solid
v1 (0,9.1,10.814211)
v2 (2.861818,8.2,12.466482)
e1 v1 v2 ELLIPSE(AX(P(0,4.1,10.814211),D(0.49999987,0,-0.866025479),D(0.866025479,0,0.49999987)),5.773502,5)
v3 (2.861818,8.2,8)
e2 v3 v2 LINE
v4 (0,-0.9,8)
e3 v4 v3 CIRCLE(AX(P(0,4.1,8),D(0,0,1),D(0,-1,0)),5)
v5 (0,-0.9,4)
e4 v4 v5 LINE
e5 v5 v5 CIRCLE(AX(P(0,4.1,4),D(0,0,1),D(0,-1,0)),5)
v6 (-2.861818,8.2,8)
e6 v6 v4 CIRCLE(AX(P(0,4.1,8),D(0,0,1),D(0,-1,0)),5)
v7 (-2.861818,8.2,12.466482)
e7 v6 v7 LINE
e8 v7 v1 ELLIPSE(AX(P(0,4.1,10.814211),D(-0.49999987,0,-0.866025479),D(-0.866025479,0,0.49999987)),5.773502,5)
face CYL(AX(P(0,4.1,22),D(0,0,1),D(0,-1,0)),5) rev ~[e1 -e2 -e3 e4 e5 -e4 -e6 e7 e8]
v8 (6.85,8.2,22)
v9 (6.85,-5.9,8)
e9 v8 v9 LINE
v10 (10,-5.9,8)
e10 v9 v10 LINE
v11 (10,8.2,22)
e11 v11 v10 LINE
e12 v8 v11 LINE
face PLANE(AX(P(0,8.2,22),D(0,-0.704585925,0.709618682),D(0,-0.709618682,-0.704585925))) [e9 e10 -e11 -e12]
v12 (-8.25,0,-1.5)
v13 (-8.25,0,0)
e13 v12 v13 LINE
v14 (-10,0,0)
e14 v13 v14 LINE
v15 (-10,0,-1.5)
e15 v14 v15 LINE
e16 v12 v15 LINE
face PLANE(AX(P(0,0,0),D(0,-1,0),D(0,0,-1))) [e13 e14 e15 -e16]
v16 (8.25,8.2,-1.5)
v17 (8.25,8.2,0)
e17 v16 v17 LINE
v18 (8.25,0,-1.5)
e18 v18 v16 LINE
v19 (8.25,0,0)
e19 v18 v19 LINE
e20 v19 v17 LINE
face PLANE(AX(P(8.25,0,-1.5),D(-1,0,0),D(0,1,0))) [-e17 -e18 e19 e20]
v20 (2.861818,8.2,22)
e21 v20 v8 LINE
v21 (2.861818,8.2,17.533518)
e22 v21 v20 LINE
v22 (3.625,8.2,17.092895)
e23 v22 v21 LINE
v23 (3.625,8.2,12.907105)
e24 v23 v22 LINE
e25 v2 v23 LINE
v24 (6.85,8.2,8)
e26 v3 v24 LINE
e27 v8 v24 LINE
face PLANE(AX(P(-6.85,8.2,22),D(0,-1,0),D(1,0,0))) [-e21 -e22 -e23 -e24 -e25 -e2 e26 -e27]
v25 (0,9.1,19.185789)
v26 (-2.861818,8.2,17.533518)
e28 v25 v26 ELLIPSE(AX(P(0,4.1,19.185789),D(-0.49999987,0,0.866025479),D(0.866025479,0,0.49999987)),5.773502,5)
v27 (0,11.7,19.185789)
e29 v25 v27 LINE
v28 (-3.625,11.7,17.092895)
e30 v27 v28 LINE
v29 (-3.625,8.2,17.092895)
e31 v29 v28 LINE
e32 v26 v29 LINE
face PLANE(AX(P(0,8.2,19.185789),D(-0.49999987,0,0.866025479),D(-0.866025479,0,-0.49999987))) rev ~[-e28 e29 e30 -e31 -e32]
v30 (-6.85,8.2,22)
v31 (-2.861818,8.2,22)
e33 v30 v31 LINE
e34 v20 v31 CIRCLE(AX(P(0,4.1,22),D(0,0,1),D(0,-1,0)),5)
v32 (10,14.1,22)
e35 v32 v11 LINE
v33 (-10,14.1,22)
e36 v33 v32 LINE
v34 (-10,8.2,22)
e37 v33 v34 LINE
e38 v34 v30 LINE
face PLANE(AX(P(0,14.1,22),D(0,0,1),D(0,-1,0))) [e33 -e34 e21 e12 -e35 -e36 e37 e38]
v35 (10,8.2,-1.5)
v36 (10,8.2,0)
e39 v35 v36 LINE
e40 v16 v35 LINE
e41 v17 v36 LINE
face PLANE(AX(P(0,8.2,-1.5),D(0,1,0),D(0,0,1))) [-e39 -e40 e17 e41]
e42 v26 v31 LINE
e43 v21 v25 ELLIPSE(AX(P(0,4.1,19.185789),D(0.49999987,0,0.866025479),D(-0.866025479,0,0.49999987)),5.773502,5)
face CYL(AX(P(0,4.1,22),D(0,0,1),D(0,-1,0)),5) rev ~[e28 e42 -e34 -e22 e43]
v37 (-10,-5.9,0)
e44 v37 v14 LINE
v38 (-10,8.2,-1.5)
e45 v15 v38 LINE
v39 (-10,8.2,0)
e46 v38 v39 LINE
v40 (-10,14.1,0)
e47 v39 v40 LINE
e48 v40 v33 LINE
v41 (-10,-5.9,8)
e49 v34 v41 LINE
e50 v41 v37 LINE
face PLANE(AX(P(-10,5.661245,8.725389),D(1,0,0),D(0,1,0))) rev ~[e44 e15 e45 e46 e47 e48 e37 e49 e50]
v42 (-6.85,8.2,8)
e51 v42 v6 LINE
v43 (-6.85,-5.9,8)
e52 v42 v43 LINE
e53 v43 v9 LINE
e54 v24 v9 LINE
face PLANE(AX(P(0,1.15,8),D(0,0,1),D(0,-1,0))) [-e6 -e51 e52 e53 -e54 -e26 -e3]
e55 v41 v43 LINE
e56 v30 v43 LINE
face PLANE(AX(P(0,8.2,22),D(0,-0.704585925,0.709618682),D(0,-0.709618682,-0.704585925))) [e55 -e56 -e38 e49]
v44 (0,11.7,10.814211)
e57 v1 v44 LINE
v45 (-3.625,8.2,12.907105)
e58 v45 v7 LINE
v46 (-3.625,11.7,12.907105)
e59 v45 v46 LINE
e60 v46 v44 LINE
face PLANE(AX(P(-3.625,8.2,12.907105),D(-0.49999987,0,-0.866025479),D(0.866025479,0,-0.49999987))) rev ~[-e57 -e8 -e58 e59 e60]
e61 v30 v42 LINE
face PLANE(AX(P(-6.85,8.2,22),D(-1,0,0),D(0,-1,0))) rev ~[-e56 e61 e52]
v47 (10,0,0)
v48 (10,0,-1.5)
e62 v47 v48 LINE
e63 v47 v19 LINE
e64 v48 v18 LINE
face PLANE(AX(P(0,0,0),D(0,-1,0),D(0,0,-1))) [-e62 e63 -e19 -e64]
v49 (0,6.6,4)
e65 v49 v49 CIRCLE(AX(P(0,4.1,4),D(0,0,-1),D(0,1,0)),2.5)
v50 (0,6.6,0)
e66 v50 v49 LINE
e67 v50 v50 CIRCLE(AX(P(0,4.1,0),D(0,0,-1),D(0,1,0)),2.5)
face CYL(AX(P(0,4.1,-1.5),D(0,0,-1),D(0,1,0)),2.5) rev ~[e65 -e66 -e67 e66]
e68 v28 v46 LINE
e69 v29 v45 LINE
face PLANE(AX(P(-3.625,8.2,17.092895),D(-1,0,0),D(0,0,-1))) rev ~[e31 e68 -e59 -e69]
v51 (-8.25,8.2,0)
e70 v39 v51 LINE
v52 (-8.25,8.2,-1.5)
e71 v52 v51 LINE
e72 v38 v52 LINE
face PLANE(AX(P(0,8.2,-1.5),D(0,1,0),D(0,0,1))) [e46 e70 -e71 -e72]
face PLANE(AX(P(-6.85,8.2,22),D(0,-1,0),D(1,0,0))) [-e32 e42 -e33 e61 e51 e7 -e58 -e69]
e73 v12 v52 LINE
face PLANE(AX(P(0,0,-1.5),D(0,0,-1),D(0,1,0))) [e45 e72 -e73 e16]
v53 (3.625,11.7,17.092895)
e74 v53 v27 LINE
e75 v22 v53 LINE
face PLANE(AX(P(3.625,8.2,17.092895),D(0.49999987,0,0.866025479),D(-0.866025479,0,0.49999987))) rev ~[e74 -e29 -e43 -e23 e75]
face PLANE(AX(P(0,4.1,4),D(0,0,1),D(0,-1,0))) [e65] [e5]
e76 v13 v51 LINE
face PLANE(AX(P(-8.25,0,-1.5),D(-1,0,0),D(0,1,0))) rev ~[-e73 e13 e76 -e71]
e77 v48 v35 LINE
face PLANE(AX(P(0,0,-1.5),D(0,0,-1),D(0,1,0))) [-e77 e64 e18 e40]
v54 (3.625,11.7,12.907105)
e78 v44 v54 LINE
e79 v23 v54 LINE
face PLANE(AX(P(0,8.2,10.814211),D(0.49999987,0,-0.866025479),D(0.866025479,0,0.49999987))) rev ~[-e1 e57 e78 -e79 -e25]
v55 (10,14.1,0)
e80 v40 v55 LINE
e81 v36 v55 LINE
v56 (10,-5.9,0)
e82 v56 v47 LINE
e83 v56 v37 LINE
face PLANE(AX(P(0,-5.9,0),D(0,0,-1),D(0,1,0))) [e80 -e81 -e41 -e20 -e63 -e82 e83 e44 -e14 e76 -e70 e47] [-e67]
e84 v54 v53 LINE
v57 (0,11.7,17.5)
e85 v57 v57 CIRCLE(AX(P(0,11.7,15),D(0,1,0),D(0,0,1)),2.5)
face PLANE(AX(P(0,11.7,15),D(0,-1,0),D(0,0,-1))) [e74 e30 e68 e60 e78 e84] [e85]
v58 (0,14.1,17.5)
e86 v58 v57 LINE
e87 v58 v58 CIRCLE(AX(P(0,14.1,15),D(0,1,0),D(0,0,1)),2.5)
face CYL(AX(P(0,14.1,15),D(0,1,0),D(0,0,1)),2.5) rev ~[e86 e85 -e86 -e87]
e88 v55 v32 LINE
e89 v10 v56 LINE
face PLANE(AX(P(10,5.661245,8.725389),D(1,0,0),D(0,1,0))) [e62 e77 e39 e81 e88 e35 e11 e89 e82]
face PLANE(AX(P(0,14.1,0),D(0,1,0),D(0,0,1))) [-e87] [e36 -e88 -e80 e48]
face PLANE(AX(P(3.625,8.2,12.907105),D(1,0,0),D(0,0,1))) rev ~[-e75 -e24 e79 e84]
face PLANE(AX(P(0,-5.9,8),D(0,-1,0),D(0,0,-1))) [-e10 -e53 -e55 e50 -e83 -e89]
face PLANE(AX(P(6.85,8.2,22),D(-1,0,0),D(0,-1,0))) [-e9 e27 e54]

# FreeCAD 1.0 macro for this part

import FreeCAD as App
import Part
import Sketcher
Q = App.Units.Quantity

doc = App.newDocument("Part")
body = doc.addObject("PartDesign::Body", "Body")

sketch1 = body.newObject("Sketcher::SketchObject", "Sketch")
sketch1.AttachmentSupport = (doc.getObject("YZ_Plane"), [""])
sketch1.MapMode = "FlatFace"
sketch1.addGeometry([
    Part.LineSegment(App.Vector(0, -1.5, 0), App.Vector(8.2, -1.5, 0)),
    Part.LineSegment(App.Vector(8.2, -1.5, 0), App.Vector(8.2, 0, 0)),
    Part.LineSegment(App.Vector(8.2, 0, 0), App.Vector(14.1, 0, 0)),
    Part.LineSegment(App.Vector(14.1, 0, 0), App.Vector(14.1, 22, 0)),
    Part.LineSegment(App.Vector(14.1, 22, 0), App.Vector(8.2, 22, 0)),
    Part.LineSegment(App.Vector(8.2, 22, 0), App.Vector(-5.9, 8, 0)),
    Part.LineSegment(App.Vector(-5.9, 8, 0), App.Vector(-5.9, 0, 0)),
    Part.LineSegment(App.Vector(-5.9, 0, 0), App.Vector(0, 0, 0)),
    Part.LineSegment(App.Vector(0, 0, 0), App.Vector(0, -1.5, 0)),
], False)
sketch1.addConstraint([
    Sketcher.Constraint("Coincident", 0, 2, 1, 1),
    Sketcher.Constraint("Coincident", 1, 2, 2, 1),
    Sketcher.Constraint("Coincident", 2, 2, 3, 1),
    Sketcher.Constraint("Coincident", 3, 2, 4, 1),
    Sketcher.Constraint("Coincident", 4, 2, 5, 1),
    Sketcher.Constraint("Coincident", 5, 2, 6, 1),
    Sketcher.Constraint("Coincident", 6, 2, 7, 1),
    Sketcher.Constraint("Coincident", 7, 2, 8, 1),
    Sketcher.Constraint("Coincident", 8, 2, 0, 1),
    Sketcher.Constraint("Horizontal", 0),
    Sketcher.Constraint("Vertical", 1),
    Sketcher.Constraint("Horizontal", 2),
    Sketcher.Constraint("Vertical", 3),
    Sketcher.Constraint("Horizontal", 4),
    Sketcher.Constraint("Vertical", 6),
    Sketcher.Constraint("Horizontal", 7),
    Sketcher.Constraint("Vertical", 8),
    Sketcher.Constraint("Coincident", 7, 2, -1, 1),
    Sketcher.Constraint("PointOnObject", 1, 2, -1),
    Sketcher.Constraint("Vertical", 1, 2, 4, 2),
    Sketcher.Constraint("Equal", 4, 7),
    Sketcher.Constraint("DistanceY", 3, 1, 3, 2, Q("22 mm")),
    Sketcher.Constraint("DistanceY", 6, 2, 6, 1, Q("8 mm")),
    Sketcher.Constraint("DistanceX", 0, 1, 0, 2, Q("8.2 mm")),
    Sketcher.Constraint("DistanceX", 2, 1, 2, 2, Q("5.9 mm")),
    Sketcher.Constraint("DistanceY", 1, 1, 1, 2, Q("1.5 mm")),
])
pad1 = body.newObject("PartDesign::Pad", "Pad")
pad1.Profile = sketch1
pad1.Length = 20
pad1.Midplane = True

sketch2 = body.newObject("Sketcher::SketchObject", "Sketch001")
sketch2.AttachmentSupport = (doc.getObject("XY_Plane"), [""])
sketch2.MapMode = "FlatFace"
sketch2.AttachmentOffset = App.Placement(App.Vector(0, 0, 22), App.Rotation())
sketch2.addGeometry([
    Part.LineSegment(App.Vector(6.85, 8.2, 0), App.Vector(-6.85, 8.2, 0)),
    Part.LineSegment(App.Vector(-6.85, 8.2, 0), App.Vector(-6.85, -5.9, 0)),
    Part.LineSegment(App.Vector(-6.85, -5.9, 0), App.Vector(6.85, -5.9, 0)),
    Part.LineSegment(App.Vector(6.85, -5.9, 0), App.Vector(6.85, 8.2, 0)),
], False)
sketch2.addConstraint([
    Sketcher.Constraint("Coincident", 0, 2, 1, 1),
    Sketcher.Constraint("Coincident", 1, 2, 2, 1),
    Sketcher.Constraint("Coincident", 2, 2, 3, 1),
    Sketcher.Constraint("Coincident", 3, 2, 0, 1),
    Sketcher.Constraint("Horizontal", 0),
    Sketcher.Constraint("Vertical", 1),
    Sketcher.Constraint("Horizontal", 2),
    Sketcher.Constraint("Vertical", 3),
    Sketcher.Constraint("DistanceX", 0, 2, 0, 1, Q("13.7 mm")),
    Sketcher.Constraint("DistanceY", 1, 2, 1, 1, Q("14.1 mm")),
    Sketcher.Constraint("DistanceY", -1, 1, 0, 2, Q("8.2 mm")),
    Sketcher.Constraint("DistanceX", 0, 2, -1, 1, Q("6.85 mm")),
])
pocket1 = body.newObject("PartDesign::Pocket", "Pocket")
pocket1.Profile = sketch2
pocket1.Length = 14

sketch3 = body.newObject("Sketcher::SketchObject", "Sketch002")
sketch3.AttachmentSupport = (doc.getObject("XY_Plane"), [""])
sketch3.MapMode = "FlatFace"
sketch3.AttachmentOffset = App.Placement(App.Vector(0, 0, -1.5), App.Rotation())
sketch3.addGeometry(Part.Circle(App.Vector(0, 4.1, 0), App.Vector(0, 0, 1), 2.5), False)
sketch3.addConstraint([
    Sketcher.Constraint("PointOnObject", 0, 3, -2),
    Sketcher.Constraint("Diameter", 0, Q("5 mm")),
    Sketcher.Constraint("DistanceY", -1, 1, 0, 3, Q("4.1 mm")),
])
pocket2 = body.newObject("PartDesign::Pocket", "Pocket001")
pocket2.Profile = sketch3
pocket2.Type = "ThroughAll"
pocket2.Reversed = True

sketch4 = body.newObject("Sketcher::SketchObject", "Sketch003")
sketch4.AttachmentSupport = (doc.getObject("XY_Plane"), [""])
sketch4.MapMode = "FlatFace"
sketch4.AttachmentOffset = App.Placement(App.Vector(0, 0, -1.5), App.Rotation())
sketch4.addGeometry([
    Part.LineSegment(App.Vector(8.25, 0, 0), App.Vector(-8.25, 0, 0)),
    Part.LineSegment(App.Vector(-8.25, 0, 0), App.Vector(-8.25, 8.2, 0)),
    Part.LineSegment(App.Vector(-8.25, 8.2, 0), App.Vector(8.25, 8.2, 0)),
    Part.LineSegment(App.Vector(8.25, 8.2, 0), App.Vector(8.25, 0, 0)),
], False)
sketch4.addConstraint([
    Sketcher.Constraint("Coincident", 0, 2, 1, 1),
    Sketcher.Constraint("Coincident", 1, 2, 2, 1),
    Sketcher.Constraint("Coincident", 2, 2, 3, 1),
    Sketcher.Constraint("Coincident", 3, 2, 0, 1),
    Sketcher.Constraint("Horizontal", 0),
    Sketcher.Constraint("Vertical", 1),
    Sketcher.Constraint("Horizontal", 2),
    Sketcher.Constraint("Vertical", 3),
    Sketcher.Constraint("Symmetric", 0, 2, 3, 2, -1, 1),
    Sketcher.Constraint("DistanceX", 0, 2, 0, 1, Q("16.5 mm")),
    Sketcher.Constraint("DistanceY", 1, 1, 1, 2, Q("8.2 mm")),
])
pocket3 = body.newObject("PartDesign::Pocket", "Pocket002")
pocket3.Profile = sketch4
pocket3.Length = 1.5
pocket3.Reversed = True

sketch5 = body.newObject("Sketcher::SketchObject", "Sketch004")
sketch5.AttachmentSupport = (doc.getObject("XZ_Plane"), [""])
sketch5.MapMode = "FlatFace"
sketch5.AttachmentOffset = App.Placement(App.Vector(0, 0, -14.1), App.Rotation())
sketch5.addGeometry(Part.Circle(App.Vector(0, 15, 0), App.Vector(0, 0, 1), 2.5), False)
sketch5.addConstraint([
    Sketcher.Constraint("PointOnObject", 0, 3, -2),
    Sketcher.Constraint("Diameter", 0, Q("5 mm")),
    Sketcher.Constraint("DistanceY", -1, 1, 0, 3, Q("15 mm")),
])
pocket4 = body.newObject("PartDesign::Pocket", "Pocket003")
pocket4.Profile = sketch5
pocket4.Type = "ThroughAll"
pocket4.Reversed = True

sketch6 = body.newObject("Sketcher::SketchObject", "Sketch005")
sketch6.AttachmentSupport = (doc.getObject("XY_Plane"), [""])
sketch6.MapMode = "FlatFace"
sketch6.AttachmentOffset = App.Placement(App.Vector(0, 0, 22), App.Rotation())
sketch6.addGeometry(Part.Circle(App.Vector(0, 4.1, 0), App.Vector(0, 0, 1), 5), False)
sketch6.addConstraint([
    Sketcher.Constraint("PointOnObject", 0, 3, -2),
    Sketcher.Constraint("Diameter", 0, Q("10 mm")),
    Sketcher.Constraint("DistanceY", -1, 1, 0, 3, Q("4.1 mm")),
])
pocket5 = body.newObject("PartDesign::Pocket", "Pocket004")
pocket5.Profile = sketch6
pocket5.Length = 18

sketch7 = body.newObject("Sketcher::SketchObject", "Sketch006")
sketch7.AttachmentSupport = (doc.getObject("XZ_Plane"), [""])
sketch7.MapMode = "FlatFace"
sketch7.AttachmentOffset = App.Placement(App.Vector(0, 0, -8.2), App.Rotation())
sketch7.addGeometry([
    Part.LineSegment(App.Vector(0, 10.814211, 0), App.Vector(3.625, 12.907105, 0)),
    Part.LineSegment(App.Vector(3.625, 12.907105, 0), App.Vector(3.625, 17.092895, 0)),
    Part.LineSegment(App.Vector(3.625, 17.092895, 0), App.Vector(0, 19.185789, 0)),
    Part.LineSegment(App.Vector(0, 19.185789, 0), App.Vector(-3.625, 17.092895, 0)),
    Part.LineSegment(App.Vector(-3.625, 17.092895, 0), App.Vector(-3.625, 12.907105, 0)),
    Part.LineSegment(App.Vector(-3.625, 12.907105, 0), App.Vector(0, 10.814211, 0)),
], False)
sketch7.addConstraint([
    Sketcher.Constraint("Coincident", 0, 2, 1, 1),
    Sketcher.Constraint("Coincident", 1, 2, 2, 1),
    Sketcher.Constraint("Coincident", 2, 2, 3, 1),
    Sketcher.Constraint("Coincident", 3, 2, 4, 1),
    Sketcher.Constraint("Coincident", 4, 2, 5, 1),
    Sketcher.Constraint("Coincident", 5, 2, 0, 1),
    Sketcher.Constraint("Vertical", 1),
    Sketcher.Constraint("Vertical", 4),
    Sketcher.Constraint("Symmetric", 1, 2, 3, 2, -2),
    Sketcher.Constraint("PointOnObject", 2, 2, -2),
    Sketcher.Constraint("PointOnObject", 5, 2, -2),
    Sketcher.Constraint("Parallel", 0, 3),
    Sketcher.Constraint("Parallel", 2, 5),
    Sketcher.Constraint("Angle", 0, Q("29.999991 deg")),
    Sketcher.Constraint("DistanceX", 3, 2, 1, 2, Q("7.25 mm")),
    Sketcher.Constraint("DistanceY", 1, 1, 1, 2, Q("4.18579 mm")),
    Sketcher.Constraint("DistanceY", -1, 1, 2, 2, Q("19.185789 mm")),
])
pocket6 = body.newObject("PartDesign::Pocket", "Pocket005")
pocket6.Profile = sketch7
pocket6.Length = 3.5

doc.recompute()
